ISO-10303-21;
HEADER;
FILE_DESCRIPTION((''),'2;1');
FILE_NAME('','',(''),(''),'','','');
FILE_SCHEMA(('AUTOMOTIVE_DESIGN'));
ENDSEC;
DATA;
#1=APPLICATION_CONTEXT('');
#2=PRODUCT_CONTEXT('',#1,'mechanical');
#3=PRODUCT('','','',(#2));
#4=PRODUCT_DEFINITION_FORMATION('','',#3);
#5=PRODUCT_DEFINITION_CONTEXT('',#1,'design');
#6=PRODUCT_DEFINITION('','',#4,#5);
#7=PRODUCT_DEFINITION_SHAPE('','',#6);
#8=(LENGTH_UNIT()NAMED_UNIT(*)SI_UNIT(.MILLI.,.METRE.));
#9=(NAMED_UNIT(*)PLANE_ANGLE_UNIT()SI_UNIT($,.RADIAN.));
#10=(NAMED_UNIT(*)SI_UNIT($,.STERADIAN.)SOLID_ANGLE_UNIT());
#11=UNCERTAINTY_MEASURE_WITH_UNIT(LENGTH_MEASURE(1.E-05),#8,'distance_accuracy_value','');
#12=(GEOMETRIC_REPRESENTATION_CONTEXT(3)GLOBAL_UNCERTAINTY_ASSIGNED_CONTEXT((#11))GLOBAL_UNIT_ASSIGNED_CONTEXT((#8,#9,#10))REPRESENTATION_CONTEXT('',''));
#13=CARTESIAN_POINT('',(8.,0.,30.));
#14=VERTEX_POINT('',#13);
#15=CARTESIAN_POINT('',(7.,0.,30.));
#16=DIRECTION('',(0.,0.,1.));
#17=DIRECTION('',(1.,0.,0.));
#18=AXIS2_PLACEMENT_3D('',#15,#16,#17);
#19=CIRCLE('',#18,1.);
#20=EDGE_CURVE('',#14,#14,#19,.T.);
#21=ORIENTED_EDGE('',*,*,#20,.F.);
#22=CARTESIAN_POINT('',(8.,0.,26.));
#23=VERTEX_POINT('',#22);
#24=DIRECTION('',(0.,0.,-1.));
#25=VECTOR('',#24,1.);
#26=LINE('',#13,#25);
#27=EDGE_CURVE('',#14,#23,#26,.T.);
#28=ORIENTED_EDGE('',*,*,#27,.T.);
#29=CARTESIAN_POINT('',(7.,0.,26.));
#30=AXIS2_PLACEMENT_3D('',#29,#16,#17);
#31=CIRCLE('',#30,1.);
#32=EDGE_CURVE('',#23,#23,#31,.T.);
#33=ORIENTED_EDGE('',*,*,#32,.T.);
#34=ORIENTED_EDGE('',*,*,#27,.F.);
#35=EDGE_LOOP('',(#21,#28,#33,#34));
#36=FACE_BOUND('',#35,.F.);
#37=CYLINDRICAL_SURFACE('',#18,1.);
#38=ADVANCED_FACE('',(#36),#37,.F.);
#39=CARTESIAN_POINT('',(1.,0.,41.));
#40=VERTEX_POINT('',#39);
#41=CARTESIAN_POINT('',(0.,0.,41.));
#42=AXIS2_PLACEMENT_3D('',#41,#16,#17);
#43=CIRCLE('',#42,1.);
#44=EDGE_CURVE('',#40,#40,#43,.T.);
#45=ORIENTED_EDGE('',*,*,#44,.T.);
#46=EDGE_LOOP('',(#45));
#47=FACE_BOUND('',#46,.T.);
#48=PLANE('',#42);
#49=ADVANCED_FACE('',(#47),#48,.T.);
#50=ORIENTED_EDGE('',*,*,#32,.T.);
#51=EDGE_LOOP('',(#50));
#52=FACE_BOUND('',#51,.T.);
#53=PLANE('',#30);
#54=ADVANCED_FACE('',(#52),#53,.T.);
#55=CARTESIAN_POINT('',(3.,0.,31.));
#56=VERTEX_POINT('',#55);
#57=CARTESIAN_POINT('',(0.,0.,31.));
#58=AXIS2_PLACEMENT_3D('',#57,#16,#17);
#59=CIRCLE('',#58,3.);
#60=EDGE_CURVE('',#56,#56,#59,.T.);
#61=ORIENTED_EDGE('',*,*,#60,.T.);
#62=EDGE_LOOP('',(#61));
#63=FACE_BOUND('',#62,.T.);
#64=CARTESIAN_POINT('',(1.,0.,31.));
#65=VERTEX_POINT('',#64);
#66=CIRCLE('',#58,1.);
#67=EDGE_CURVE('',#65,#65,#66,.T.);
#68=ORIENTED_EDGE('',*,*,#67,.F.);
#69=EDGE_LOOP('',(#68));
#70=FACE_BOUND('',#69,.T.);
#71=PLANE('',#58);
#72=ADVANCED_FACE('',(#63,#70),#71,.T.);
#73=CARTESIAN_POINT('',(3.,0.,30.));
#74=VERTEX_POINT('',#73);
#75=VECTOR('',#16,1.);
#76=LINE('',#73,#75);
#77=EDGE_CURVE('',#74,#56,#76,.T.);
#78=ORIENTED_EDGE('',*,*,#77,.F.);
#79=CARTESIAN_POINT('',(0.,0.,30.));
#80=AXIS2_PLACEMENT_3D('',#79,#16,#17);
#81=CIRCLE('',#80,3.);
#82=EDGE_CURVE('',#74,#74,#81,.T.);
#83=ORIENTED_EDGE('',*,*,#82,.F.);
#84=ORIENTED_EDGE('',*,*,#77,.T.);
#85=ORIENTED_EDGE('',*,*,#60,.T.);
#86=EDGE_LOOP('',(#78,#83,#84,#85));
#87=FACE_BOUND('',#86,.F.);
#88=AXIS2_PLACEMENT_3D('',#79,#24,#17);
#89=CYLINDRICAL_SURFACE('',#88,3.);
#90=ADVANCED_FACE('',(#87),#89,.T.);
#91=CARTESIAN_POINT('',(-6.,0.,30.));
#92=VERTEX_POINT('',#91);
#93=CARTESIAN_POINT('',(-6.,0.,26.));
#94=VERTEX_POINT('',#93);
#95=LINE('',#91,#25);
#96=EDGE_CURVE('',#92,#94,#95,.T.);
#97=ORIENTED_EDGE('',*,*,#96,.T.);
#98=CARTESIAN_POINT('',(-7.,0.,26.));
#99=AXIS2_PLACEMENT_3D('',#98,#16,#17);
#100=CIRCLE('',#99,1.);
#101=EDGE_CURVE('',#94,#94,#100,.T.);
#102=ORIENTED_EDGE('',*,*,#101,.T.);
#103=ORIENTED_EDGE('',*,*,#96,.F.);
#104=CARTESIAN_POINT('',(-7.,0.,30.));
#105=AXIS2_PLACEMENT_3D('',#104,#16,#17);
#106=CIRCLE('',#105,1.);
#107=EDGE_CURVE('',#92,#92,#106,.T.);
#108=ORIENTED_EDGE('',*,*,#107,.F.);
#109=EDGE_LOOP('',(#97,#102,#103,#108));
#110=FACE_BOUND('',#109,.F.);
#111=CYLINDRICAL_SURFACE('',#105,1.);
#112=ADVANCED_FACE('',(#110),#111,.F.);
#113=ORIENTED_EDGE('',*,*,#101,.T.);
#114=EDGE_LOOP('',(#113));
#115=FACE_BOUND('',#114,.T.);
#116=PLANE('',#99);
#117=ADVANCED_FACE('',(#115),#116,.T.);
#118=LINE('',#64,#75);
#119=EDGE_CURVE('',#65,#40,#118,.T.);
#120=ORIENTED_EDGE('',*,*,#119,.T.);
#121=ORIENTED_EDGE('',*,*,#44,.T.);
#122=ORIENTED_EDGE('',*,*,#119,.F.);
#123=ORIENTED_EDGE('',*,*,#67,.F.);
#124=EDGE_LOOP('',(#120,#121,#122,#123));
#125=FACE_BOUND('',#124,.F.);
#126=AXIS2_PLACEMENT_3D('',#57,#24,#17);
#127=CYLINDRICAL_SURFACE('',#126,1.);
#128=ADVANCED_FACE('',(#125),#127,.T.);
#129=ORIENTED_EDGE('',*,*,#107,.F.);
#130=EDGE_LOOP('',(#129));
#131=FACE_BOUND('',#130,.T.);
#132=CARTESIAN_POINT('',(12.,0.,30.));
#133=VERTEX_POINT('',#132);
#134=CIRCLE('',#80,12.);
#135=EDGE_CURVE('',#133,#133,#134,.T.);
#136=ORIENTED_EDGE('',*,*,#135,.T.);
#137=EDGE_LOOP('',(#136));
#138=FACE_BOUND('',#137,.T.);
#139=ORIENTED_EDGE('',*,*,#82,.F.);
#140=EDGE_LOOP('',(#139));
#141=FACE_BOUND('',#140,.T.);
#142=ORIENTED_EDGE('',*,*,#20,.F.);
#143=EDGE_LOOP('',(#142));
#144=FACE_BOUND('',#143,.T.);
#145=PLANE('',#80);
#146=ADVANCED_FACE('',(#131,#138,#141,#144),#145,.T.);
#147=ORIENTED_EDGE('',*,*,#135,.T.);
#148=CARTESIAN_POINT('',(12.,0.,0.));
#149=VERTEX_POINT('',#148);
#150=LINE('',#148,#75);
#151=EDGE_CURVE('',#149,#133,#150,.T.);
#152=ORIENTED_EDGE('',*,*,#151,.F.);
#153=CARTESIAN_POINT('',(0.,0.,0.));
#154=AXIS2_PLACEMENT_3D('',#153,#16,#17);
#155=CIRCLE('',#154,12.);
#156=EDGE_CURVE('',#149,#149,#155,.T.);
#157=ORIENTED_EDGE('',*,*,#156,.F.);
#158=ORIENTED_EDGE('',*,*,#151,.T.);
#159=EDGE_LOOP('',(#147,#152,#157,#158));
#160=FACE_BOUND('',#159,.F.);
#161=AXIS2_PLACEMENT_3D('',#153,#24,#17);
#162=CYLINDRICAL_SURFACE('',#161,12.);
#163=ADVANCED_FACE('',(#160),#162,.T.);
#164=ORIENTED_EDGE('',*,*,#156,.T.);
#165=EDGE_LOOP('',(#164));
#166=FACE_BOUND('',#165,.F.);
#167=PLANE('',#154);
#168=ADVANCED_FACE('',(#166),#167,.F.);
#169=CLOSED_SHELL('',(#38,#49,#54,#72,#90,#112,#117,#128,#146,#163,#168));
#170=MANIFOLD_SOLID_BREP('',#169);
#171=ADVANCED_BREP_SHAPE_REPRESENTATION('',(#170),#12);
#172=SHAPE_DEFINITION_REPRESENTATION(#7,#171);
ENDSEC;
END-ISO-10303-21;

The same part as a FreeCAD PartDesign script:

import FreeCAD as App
import Part
import Sketcher
Q = App.Units.Quantity

doc = App.newDocument("Part")
body = doc.addObject("PartDesign::Body", "Body")

# Sketch on XY plane
sketch1 = body.newObject("Sketcher::SketchObject", "Sketch")
sketch1.AttachmentSupport = (doc.getObject("XY_Plane"), [""])
sketch1.MapMode = "FlatFace"
sketch1.addGeometry(Part.Circle(App.Vector(0, 0, 0), App.Vector(0, 0, 1), 12), False)
sketch1.addConstraint(Sketcher.Constraint("Coincident", 0, 3, -1, 1))
sketch1.addConstraint(Sketcher.Constraint("Diameter", 0, Q("24 mm")))
pad1 = body.newObject("PartDesign::Pad", "Pad")
pad1.Profile = sketch1
pad1.Length = 30

# Sketch on XY plane
sketch2 = body.newObject("Sketcher::SketchObject", "Sketch001")
sketch2.AttachmentSupport = (doc.getObject("XY_Plane"), [""])
sketch2.MapMode = "FlatFace"
sketch2.AttachmentOffset = App.Placement(App.Vector(0, 0, 30), App.Rotation())
sketch2.addGeometry(Part.Circle(App.Vector(0, 0, 0), App.Vector(0, 0, 1), 3), False)
sketch2.addConstraint(Sketcher.Constraint("Coincident", 0, 3, -1, 1))
sketch2.addConstraint(Sketcher.Constraint("Diameter", 0, Q("6 mm")))
pad2 = body.newObject("PartDesign::Pad", "Pad001")
pad2.Profile = sketch2
pad2.Length = 1

# Sketch on XY plane
sketch3 = body.newObject("Sketcher::SketchObject", "Sketch002")
sketch3.AttachmentSupport = (doc.getObject("XY_Plane"), [""])
sketch3.MapMode = "FlatFace"
sketch3.AttachmentOffset = App.Placement(App.Vector(0, 0, 31), App.Rotation())
sketch3.addGeometry(Part.Circle(App.Vector(0, 0, 0), App.Vector(0, 0, 1), 1), False)
sketch3.addConstraint(Sketcher.Constraint("Coincident", 0, 3, -1, 1))
sketch3.addConstraint(Sketcher.Constraint("Diameter", 0, Q("2 mm")))
pad3 = body.newObject("PartDesign::Pad", "Pad002")
pad3.Profile = sketch3
pad3.Length = 10

# Sketch on XY plane
sketch4 = body.newObject("Sketcher::SketchObject", "Sketch003")
sketch4.AttachmentSupport = (doc.getObject("XY_Plane"), [""])
sketch4.MapMode = "FlatFace"
sketch4.AttachmentOffset = App.Placement(App.Vector(0, 0, 30), App.Rotation())
sketch4.addGeometry(Part.Circle(App.Vector(-7, 0, 0), App.Vector(0, 0, 1), 1), False)
sketch4.addGeometry(Part.Circle(App.Vector(7, 0, 0), App.Vector(0, 0, 1), 1), False)
sketch4.addConstraint(Sketcher.Constraint("Equal", 0, 1))
sketch4.addConstraint(Sketcher.Constraint("Symmetric", 0, 3, 1, 3, -1, 1))
sketch4.addConstraint(Sketcher.Constraint("PointOnObject", 0, 3, -1))
sketch4.addConstraint(Sketcher.Constraint("Diameter", 0, Q("2 mm")))
sketch4.addConstraint(Sketcher.Constraint("DistanceX", 0, 3, -1, 1, Q("7 mm")))
pocket1 = body.newObject("PartDesign::Pocket", "Pocket")
pocket1.Profile = sketch4
pocket1.Length = 4

doc.recompute()
